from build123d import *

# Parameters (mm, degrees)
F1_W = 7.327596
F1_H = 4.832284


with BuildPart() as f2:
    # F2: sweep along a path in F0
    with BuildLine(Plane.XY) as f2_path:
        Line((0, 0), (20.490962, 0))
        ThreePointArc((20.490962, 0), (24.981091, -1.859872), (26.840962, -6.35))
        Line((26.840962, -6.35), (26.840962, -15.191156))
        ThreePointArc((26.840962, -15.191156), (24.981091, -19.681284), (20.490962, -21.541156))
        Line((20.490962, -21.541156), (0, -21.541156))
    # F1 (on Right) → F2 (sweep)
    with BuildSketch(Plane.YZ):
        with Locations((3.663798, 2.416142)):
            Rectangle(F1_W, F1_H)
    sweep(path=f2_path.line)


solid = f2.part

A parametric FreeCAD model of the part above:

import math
import FreeCAD as App
import Part
import Sketcher
from FreeCAD import Vector
Q = App.Units.Quantity

doc = App.newDocument("Part")
body = doc.addObject("PartDesign::Body", "Body")

# Sketch on YZ plane
sketch1 = body.newObject("Sketcher::SketchObject", "Sketch")
sketch1.AttachmentSupport = (doc.getObject("YZ_Plane"), [""])
sketch1.MapMode = "FlatFace"
sketch1.addGeometry([
    Part.LineSegment(Vector(0, 4.8, 0), Vector(0, 0, 0)),
    Part.LineSegment(Vector(0, 0, 0), Vector(7.3, 0, 0)),
    Part.LineSegment(Vector(7.3, 0, 0), Vector(7.3, 4.8, 0)),
    Part.LineSegment(Vector(7.3, 4.8, 0), Vector(0, 4.8, 0)),
], False)
sketch1.addConstraint([
    Sketcher.Constraint("Coincident", 0, 2, 1, 1),
    Sketcher.Constraint("Coincident", 1, 2, 2, 1),
    Sketcher.Constraint("Coincident", 2, 2, 3, 1),
    Sketcher.Constraint("Coincident", 3, 2, 0, 1),
    Sketcher.Constraint("Vertical", 0),
    Sketcher.Constraint("Horizontal", 1),
    Sketcher.Constraint("Vertical", 2),
    Sketcher.Constraint("Horizontal", 3),
    Sketcher.Constraint("Coincident", 0, 2, -1, 1),
    Sketcher.Constraint("DistanceX", 1, 1, 1, 2, Q("7.327596 mm")),
    Sketcher.Constraint("DistanceY", 0, 2, 0, 1, Q("4.832284 mm")),
])

# Sketch on XY plane
sketch2 = body.newObject("Sketcher::SketchObject", "Sketch001")
sketch2.AttachmentSupport = (doc.getObject("XY_Plane"), [""])
sketch2.MapMode = "FlatFace"
sketch2.addGeometry([
    Part.LineSegment(Vector(0, 0, 0), Vector(20, 0, 0)),  # 0
    Part.ArcOfCircle(Part.Circle(Vector(20, -6, 0), Vector(0, 0, 1), 6), math.radians(0), math.radians(90)),  # 1
    Part.LineSegment(Vector(27, -6, 0), Vector(27, -15, 0)),  # 2
    Part.ArcOfCircle(Part.Circle(Vector(20, -15, 0), Vector(0, 0, 1), 6), math.radians(-90), math.radians(0)),  # 3
    Part.LineSegment(Vector(20, -22, 0), Vector(0, -22, 0)),  # 4
], False)
sketch2.addConstraint([
    Sketcher.Constraint("Tangent", 0, 2, 1, 2),
    Sketcher.Constraint("Tangent", 1, 1, 2, 1),
    Sketcher.Constraint("Tangent", 2, 2, 3, 2),
    Sketcher.Constraint("Tangent", 3, 1, 4, 1),
    Sketcher.Constraint("Horizontal", 0),
    Sketcher.Constraint("Vertical", 2),
    Sketcher.Constraint("Horizontal", 4),
    Sketcher.Constraint("Coincident", 0, 1, -1, 1),
    Sketcher.Constraint("Equal", 1, 3),
    Sketcher.Constraint("PointOnObject", 4, 2, -2),
    Sketcher.Constraint("Radius", 1, Q("0.2499999 in")),
    Sketcher.Constraint("DistanceX", 0, 1, 0, 2, Q("20.490962 mm")),
    Sketcher.Constraint("DistanceY", 2, 2, 2, 1, Q("8.841156 mm")),
])
doc.recompute()

additivepipe = body.newObject("PartDesign::AdditivePipe", "AdditivePipe")
additivepipe.Profile = sketch1
additivepipe.Spine = (sketch2, ["Edge1", "Edge2", "Edge3", "Edge4", "Edge5"])

doc.recompute()
